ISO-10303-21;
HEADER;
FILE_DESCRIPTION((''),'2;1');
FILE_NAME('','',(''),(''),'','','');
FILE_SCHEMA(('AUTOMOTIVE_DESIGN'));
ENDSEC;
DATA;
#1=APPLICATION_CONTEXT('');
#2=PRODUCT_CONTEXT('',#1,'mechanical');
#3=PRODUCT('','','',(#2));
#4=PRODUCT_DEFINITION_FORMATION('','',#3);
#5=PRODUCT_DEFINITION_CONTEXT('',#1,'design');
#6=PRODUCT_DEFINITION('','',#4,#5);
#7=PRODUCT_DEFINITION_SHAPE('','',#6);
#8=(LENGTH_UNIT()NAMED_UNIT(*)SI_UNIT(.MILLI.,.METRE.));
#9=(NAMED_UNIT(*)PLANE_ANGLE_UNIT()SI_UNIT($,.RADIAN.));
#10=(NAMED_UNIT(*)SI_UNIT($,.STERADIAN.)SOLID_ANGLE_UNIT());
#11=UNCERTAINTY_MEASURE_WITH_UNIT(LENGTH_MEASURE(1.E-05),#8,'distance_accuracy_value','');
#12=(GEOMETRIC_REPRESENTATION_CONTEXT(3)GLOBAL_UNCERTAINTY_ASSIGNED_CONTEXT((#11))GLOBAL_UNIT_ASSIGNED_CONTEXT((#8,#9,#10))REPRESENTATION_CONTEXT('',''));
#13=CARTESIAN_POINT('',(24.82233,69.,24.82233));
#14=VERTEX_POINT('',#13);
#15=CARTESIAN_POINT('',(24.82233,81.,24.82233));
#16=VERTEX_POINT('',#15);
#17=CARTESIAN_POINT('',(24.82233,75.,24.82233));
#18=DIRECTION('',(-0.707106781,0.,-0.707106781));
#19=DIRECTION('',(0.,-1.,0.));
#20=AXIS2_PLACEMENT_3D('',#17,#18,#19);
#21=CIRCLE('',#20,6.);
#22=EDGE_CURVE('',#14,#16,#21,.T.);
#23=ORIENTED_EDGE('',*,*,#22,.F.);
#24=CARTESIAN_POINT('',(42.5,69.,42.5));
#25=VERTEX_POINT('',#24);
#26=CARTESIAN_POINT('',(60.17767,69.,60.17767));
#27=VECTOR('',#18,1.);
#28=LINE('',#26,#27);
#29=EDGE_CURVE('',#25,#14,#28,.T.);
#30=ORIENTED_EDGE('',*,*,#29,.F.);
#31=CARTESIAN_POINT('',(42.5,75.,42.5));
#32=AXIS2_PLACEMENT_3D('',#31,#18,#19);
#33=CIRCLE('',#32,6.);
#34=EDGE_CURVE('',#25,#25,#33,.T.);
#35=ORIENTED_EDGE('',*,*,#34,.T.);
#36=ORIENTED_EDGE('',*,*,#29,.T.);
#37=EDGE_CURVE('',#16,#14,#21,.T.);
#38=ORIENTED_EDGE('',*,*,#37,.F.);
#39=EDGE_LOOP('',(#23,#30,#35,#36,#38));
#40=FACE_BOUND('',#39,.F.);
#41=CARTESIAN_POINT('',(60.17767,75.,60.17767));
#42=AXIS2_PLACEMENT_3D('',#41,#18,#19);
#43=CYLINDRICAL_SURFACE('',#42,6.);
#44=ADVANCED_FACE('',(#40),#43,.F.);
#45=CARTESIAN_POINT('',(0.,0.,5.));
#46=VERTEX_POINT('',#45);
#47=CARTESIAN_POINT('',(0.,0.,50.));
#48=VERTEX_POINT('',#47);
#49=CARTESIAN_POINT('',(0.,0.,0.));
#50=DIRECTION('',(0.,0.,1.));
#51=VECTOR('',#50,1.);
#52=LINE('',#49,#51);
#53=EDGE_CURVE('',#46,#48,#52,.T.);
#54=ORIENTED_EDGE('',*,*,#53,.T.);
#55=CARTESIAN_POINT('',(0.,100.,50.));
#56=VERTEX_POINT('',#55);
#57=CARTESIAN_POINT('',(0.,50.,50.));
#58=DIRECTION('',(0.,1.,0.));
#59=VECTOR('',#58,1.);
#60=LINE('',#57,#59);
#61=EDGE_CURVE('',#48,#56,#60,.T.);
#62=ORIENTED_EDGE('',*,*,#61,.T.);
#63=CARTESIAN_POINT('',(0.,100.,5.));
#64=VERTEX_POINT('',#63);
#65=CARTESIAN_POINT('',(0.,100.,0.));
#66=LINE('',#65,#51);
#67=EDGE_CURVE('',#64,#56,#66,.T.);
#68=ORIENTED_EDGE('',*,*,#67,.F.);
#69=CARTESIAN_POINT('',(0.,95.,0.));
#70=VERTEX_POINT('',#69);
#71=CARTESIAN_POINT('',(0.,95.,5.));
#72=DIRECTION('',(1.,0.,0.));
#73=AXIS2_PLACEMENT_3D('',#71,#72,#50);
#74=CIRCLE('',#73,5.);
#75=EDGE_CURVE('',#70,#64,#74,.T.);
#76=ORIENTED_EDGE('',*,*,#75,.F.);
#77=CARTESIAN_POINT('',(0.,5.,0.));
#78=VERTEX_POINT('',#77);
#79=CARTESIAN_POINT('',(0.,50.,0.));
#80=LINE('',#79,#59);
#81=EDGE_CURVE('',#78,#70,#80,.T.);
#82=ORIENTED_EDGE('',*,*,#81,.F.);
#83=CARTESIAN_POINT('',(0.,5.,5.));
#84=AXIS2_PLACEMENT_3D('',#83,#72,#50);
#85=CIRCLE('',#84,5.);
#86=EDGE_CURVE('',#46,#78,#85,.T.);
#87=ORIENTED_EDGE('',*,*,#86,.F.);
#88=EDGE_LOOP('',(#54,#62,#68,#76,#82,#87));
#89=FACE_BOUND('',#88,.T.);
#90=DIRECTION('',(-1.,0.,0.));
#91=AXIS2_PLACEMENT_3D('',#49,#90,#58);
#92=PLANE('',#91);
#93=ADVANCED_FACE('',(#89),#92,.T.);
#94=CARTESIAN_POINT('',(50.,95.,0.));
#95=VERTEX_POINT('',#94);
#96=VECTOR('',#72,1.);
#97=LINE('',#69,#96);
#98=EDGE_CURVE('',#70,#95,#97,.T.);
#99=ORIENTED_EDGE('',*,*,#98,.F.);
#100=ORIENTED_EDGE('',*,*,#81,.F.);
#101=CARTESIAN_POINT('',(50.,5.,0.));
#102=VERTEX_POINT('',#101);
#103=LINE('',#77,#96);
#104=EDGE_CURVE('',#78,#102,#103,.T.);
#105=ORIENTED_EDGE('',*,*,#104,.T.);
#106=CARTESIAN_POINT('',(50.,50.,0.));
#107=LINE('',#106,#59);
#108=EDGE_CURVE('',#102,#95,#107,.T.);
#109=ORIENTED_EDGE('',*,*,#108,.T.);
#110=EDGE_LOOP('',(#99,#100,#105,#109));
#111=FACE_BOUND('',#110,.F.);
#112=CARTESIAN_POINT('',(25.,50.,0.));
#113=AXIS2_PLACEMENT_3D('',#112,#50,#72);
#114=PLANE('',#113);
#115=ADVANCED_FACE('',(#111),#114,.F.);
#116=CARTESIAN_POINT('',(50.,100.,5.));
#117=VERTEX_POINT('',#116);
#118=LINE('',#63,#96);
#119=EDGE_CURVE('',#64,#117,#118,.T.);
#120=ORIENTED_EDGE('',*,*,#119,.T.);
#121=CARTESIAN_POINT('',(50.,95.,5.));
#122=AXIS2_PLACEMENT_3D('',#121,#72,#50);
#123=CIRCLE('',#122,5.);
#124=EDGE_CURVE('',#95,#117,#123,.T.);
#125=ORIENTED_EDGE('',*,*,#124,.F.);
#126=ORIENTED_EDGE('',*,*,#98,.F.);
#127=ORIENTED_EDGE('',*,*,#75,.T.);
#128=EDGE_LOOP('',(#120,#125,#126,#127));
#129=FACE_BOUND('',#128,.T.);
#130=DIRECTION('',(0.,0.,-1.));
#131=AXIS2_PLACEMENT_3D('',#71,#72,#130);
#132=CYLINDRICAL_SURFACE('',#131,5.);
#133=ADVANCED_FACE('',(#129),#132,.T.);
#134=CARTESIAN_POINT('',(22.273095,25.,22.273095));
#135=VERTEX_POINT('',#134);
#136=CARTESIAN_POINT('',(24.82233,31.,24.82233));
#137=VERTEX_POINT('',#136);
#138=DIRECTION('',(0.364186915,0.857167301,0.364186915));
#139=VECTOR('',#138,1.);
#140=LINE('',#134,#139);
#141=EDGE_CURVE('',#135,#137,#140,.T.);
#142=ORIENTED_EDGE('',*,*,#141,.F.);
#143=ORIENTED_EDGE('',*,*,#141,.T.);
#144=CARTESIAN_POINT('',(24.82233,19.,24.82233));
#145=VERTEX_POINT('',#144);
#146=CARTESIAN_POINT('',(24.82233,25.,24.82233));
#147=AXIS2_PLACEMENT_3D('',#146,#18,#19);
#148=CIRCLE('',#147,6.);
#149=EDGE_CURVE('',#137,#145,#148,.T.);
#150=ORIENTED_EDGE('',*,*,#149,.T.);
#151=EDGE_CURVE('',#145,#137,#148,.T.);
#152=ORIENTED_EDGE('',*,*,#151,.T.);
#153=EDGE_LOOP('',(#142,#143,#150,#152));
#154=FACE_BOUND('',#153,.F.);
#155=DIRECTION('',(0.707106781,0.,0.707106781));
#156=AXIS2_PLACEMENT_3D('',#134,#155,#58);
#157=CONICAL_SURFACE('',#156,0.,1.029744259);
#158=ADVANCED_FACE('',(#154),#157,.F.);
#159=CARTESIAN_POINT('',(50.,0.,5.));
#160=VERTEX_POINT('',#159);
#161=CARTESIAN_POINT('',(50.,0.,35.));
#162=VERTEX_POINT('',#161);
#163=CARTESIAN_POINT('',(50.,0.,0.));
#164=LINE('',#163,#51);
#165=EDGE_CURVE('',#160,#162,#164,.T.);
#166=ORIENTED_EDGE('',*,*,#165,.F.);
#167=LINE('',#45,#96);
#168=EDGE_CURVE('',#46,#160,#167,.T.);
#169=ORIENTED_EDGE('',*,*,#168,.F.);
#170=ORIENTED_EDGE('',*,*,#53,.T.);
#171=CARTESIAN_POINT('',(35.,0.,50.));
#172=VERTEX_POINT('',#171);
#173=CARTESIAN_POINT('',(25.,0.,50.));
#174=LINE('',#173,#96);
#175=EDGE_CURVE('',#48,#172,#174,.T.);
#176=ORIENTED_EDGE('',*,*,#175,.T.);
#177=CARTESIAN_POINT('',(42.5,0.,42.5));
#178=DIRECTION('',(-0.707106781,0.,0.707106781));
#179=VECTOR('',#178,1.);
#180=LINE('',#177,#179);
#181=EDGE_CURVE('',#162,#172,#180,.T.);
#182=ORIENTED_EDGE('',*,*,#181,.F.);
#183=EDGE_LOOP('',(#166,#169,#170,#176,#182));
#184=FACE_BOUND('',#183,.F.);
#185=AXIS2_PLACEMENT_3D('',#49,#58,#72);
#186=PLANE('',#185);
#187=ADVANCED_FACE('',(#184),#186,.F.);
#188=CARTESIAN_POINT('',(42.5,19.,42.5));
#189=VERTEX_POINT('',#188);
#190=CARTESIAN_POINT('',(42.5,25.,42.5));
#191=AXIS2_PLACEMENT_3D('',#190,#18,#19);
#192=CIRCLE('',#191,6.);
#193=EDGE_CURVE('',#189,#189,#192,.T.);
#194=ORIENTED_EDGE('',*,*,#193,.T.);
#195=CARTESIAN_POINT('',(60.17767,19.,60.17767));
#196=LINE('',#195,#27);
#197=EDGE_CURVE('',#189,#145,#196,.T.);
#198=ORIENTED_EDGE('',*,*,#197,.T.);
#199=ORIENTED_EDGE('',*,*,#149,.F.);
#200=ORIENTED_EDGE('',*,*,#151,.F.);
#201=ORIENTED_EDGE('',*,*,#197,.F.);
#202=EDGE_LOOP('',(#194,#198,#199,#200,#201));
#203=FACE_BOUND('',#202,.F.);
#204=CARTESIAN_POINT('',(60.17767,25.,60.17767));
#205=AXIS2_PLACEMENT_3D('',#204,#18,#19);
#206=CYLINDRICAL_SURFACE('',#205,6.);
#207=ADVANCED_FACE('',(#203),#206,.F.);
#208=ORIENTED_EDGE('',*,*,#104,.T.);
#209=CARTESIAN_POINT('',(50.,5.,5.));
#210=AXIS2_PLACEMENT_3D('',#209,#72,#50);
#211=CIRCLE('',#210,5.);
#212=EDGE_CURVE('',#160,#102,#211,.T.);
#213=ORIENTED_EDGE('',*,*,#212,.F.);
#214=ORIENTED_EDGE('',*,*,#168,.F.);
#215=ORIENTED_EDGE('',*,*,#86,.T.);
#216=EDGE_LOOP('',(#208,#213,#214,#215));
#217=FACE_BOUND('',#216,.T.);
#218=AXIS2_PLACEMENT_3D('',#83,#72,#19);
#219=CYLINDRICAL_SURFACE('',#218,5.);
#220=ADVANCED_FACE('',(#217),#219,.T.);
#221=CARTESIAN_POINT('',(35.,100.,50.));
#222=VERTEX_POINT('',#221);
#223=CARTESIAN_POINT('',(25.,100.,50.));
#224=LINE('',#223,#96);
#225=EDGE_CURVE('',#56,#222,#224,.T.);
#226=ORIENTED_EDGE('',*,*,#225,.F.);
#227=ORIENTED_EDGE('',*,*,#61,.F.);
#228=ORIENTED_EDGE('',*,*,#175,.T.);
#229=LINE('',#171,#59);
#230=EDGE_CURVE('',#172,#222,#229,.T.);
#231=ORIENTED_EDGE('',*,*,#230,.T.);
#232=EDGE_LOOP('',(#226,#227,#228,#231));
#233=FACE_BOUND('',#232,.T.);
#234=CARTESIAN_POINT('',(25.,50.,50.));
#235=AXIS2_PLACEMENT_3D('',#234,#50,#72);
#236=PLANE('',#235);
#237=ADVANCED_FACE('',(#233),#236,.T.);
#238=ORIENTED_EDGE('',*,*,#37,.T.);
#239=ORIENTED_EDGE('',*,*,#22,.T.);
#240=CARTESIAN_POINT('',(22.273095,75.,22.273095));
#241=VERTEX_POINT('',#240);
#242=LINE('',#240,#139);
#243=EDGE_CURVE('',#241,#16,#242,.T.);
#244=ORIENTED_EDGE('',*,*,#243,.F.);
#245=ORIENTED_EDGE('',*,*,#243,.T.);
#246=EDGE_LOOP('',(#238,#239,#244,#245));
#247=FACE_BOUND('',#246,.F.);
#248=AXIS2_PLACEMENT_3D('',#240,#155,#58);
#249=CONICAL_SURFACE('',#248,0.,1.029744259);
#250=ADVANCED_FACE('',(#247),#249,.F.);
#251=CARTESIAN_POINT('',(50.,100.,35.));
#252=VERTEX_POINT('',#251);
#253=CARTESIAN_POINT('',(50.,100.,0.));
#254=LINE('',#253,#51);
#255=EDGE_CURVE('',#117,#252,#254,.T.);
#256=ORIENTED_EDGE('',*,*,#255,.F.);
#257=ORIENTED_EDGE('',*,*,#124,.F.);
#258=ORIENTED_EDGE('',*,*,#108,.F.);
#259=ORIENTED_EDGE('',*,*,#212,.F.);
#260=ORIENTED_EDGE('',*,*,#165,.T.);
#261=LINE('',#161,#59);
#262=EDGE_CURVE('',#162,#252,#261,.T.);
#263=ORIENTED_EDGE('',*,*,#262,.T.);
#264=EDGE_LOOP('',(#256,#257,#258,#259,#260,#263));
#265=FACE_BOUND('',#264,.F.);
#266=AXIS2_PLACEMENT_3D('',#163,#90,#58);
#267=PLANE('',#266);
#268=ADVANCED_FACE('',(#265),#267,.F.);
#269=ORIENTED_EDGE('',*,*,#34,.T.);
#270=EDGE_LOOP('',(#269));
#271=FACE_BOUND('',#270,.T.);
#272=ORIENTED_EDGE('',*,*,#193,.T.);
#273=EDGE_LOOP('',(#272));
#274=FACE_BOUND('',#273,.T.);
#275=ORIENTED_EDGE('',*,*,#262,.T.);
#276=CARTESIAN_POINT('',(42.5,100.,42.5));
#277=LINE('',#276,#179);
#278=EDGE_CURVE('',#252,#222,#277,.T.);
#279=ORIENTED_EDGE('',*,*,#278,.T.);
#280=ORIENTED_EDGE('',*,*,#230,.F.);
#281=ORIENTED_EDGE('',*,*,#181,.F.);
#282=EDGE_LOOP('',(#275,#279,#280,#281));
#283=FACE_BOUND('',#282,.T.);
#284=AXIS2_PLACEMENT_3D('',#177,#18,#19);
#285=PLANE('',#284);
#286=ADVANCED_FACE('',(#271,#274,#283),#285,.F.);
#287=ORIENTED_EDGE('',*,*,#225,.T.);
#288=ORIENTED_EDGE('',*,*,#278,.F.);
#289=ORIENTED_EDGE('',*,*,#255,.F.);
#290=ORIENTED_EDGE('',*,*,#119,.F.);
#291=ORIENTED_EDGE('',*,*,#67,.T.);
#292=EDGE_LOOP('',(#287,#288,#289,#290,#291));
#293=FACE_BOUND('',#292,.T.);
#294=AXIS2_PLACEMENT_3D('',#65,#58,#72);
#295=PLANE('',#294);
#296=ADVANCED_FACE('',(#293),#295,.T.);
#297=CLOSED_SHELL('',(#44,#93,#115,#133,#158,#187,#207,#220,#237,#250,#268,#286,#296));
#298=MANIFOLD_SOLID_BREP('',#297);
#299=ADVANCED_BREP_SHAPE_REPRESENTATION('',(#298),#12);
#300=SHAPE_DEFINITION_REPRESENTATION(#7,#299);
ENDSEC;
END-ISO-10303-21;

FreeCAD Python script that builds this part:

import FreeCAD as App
import Part
import Sketcher
Q = App.Units.Quantity


def edges_at(feature, points):
    """Names of the edges that pass closest to the given points."""
    edges = feature.Shape.Edges
    near = lambda p: min(range(len(edges)), key=lambda i: edges[i].distToShape(Part.Vertex(*p))[0])
    return sorted({f"Edge{near(p) + 1}" for p in points})

doc = App.newDocument("Part")
params = doc.addObject("Spreadsheet::Sheet", "Params")
for row, (alias, value) in enumerate([
    ("sketch1_width", "50 mm"),
    ("sketch1_height", "100 mm"),
    ("pad1_length", "50 mm"),
    ("chamfer_size", "15 mm"),
    ("sketch2_diameter", "12 mm"),
    ("hole_diameter", "12 mm"),
    ("hole_depth", "25 mm"),
    ("fillet_radius", "5 mm"),
], start=1):
    params.set(f"A{row}", alias)
    params.set(f"B{row}", "=" + value)
    params.setAlias(f"B{row}", alias)

body = doc.addObject("PartDesign::Body", "Body")

# Sketch on XY plane
sketch1 = doc.addObject("Sketcher::SketchObject", "Sketch")
body.addObject(sketch1)
sketch1.AttachmentSupport = (doc.XY_Plane, [""])
sketch1.MapMode = "FlatFace"
sketch1.addGeometry(Part.LineSegment(App.Vector(0, 100, 0), App.Vector(0, 0, 0)), False)
sketch1.addGeometry(Part.LineSegment(App.Vector(0, 0, 0), App.Vector(50, 0, 0)), False)
sketch1.addGeometry(Part.LineSegment(App.Vector(50, 0, 0), App.Vector(50, 100, 0)), False)
sketch1.addGeometry(Part.LineSegment(App.Vector(50, 100, 0), App.Vector(0, 100, 0)), False)
sketch1.addConstraint(Sketcher.Constraint("Coincident", 0, 2, 1, 1))
sketch1.addConstraint(Sketcher.Constraint("Coincident", 1, 2, 2, 1))
sketch1.addConstraint(Sketcher.Constraint("Coincident", 2, 2, 3, 1))
sketch1.addConstraint(Sketcher.Constraint("Coincident", 3, 2, 0, 1))
sketch1.addConstraint(Sketcher.Constraint("Vertical", 0))
sketch1.addConstraint(Sketcher.Constraint("Horizontal", 1))
sketch1.addConstraint(Sketcher.Constraint("Vertical", 2))
sketch1.addConstraint(Sketcher.Constraint("Horizontal", 3))
sketch1.addConstraint(Sketcher.Constraint("Coincident", 0, 2, -1, 1))
sketch1.addConstraint(Sketcher.Constraint("DistanceX", 1, 1, 1, 2, Q("50 mm")))
sketch1.addConstraint(Sketcher.Constraint("DistanceY", 0, 2, 0, 1, Q("100 mm")))
sketch1.setExpression("Constraints[9]", "Params.sketch1_width")
sketch1.setExpression("Constraints[10]", "Params.sketch1_height")
pad1 = doc.addObject("PartDesign::Pad", "Pad")
body.addObject(pad1)
pad1.Profile = sketch1
pad1.setExpression("Length", "Params.pad1_length")
doc.recompute()

chamfer = doc.addObject("PartDesign::Chamfer", "Chamfer")
body.addObject(chamfer)
chamfer.Base = (pad1, edges_at(pad1, [(50, 50, 50)]))
chamfer.setExpression("Size", "Params.chamfer_size")

# Sketch on an angled plane
sketch2 = doc.addObject("Sketcher::SketchObject", "Sketch001")
body.addObject(sketch2)
sketch2.Placement = App.Placement(App.Vector(42.5, 0, 42.5), App.Rotation(App.Vector(0, 1, 0), App.Vector(-0.707106781, 0, 0.707106781), App.Vector(0.707106781, 0, 0.707106781), "ZXY"))
sketch2.addGeometry(Part.Circle(App.Vector(25, 0, 0), App.Vector(0, 0, 1), 6), False)
sketch2.addGeometry(Part.Circle(App.Vector(75, 0, 0), App.Vector(0, 0, 1), 6), False)
sketch2.addConstraint(Sketcher.Constraint("Equal", 0, 1))
sketch2.addConstraint(Sketcher.Constraint("PointOnObject", 0, 3, -1))
sketch2.addConstraint(Sketcher.Constraint("PointOnObject", 1, 3, -1))
sketch2.addConstraint(Sketcher.Constraint("Diameter", 0, Q("12 mm")))
sketch2.addConstraint(Sketcher.Constraint("DistanceX", -1, 1, 0, 3, Q("25 mm")))
sketch2.addConstraint(Sketcher.Constraint("DistanceX", -1, 1, 1, 3, Q("75 mm")))
sketch2.setExpression("Constraints[3]", "Params.sketch2_diameter")
doc.recompute()
hole = doc.addObject("PartDesign::Hole", "Hole")
body.addObject(hole)
hole.Profile = sketch2
hole.ThreadType = "None"
hole.setExpression("Diameter", "Params.hole_diameter")
hole.DepthType = "Dimension"
hole.setExpression("Depth", "Params.hole_depth")
hole.DrillPoint = "Angled"
hole.DrillPointAngle = 118
doc.recompute()

fillet = doc.addObject("PartDesign::Fillet", "Fillet")
body.addObject(fillet)
fillet.Base = (hole, edges_at(hole, [(25, 100, 0), (25, 0, 0)]))
fillet.setExpression("Radius", "Params.fillet_radius")

doc.recompute()
